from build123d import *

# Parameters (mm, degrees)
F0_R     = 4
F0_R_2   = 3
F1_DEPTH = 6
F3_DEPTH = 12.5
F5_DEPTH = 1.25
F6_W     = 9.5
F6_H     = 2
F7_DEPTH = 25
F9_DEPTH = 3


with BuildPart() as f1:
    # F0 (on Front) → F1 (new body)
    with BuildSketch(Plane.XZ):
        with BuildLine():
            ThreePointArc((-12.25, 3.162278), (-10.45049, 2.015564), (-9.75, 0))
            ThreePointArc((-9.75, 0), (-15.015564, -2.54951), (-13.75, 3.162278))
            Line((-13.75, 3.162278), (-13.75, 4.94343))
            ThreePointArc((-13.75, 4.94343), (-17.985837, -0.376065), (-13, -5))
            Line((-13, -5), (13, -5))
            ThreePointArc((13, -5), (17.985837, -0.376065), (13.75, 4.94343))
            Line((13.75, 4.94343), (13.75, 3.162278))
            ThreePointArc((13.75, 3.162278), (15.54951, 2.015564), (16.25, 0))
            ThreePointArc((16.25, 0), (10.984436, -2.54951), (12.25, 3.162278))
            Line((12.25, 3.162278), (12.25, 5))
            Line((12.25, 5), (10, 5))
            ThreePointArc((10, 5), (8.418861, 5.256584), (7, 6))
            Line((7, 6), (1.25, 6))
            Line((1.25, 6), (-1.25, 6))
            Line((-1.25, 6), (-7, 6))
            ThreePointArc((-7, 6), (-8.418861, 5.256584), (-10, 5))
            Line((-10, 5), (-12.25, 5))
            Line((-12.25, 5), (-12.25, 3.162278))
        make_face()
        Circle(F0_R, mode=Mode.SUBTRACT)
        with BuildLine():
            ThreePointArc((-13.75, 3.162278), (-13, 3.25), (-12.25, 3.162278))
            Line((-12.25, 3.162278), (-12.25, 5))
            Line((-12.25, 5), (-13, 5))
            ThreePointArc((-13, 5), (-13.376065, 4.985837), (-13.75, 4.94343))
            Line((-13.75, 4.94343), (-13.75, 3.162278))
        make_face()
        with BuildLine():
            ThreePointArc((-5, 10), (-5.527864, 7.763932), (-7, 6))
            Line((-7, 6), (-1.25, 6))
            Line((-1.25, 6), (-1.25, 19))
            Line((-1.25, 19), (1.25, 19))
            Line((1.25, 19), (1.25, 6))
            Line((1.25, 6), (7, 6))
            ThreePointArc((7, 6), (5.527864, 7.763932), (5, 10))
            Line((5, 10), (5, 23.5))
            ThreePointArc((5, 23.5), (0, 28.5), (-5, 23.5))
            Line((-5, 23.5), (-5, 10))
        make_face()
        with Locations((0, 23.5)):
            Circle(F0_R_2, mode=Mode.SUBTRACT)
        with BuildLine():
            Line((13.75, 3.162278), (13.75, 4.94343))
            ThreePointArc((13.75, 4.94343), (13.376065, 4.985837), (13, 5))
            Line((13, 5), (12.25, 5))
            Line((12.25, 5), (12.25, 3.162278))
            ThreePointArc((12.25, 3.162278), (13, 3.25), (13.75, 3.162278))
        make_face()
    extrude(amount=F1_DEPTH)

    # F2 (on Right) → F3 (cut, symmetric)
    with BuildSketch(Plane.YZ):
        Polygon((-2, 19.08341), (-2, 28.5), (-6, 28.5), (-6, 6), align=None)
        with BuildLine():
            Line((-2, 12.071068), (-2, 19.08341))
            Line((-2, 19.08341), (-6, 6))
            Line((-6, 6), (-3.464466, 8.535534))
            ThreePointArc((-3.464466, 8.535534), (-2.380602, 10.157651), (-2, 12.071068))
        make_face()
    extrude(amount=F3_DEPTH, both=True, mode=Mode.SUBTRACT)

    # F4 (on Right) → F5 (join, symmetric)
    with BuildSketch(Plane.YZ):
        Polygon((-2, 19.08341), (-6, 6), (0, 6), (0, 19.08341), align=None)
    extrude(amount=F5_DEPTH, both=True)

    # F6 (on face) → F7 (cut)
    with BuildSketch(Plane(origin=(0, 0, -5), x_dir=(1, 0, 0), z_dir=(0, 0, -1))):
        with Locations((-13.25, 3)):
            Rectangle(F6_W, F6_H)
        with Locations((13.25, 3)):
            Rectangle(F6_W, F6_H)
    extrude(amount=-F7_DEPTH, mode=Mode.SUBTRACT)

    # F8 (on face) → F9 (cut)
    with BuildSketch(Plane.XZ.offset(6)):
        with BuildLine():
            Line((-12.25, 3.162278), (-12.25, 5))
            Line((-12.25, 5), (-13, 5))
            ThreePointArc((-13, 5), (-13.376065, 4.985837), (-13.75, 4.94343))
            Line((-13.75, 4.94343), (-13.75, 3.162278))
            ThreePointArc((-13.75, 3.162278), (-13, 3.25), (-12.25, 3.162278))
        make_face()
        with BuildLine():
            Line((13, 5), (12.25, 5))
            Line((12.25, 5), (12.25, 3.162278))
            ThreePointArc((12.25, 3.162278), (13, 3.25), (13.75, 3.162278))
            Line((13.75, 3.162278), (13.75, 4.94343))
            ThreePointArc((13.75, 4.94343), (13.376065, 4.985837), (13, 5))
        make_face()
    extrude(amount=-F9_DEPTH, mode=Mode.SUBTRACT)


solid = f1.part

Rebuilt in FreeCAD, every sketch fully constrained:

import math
import FreeCAD as App
import Part
import Sketcher

V = App.Vector
Q = App.Units.Quantity


def add_polygon(sketch, points):
    """Adds a closed chain of lines whose ends are joined by coincident constraints."""
    first, n = sketch.GeometryCount, len(points)
    for a, b in zip(points, points[1:] + points[:1]):
        sketch.addGeometry(Part.LineSegment(App.Vector(*a, 0), App.Vector(*b, 0)), False)
    for i in range(n):
        sketch.addConstraint(Sketcher.Constraint("Coincident", first + i, 2, first + (i + 1) % n, 1))

doc = App.newDocument("Part")
body = doc.addObject("PartDesign::Body", "Body")

# Sketch on XZ plane
sketch1 = body.newObject("Sketcher::SketchObject", "Sketch")
sketch1.AttachmentSupport = (doc.getObject("XZ_Plane"), [""])
sketch1.MapMode = "FlatFace"
sketch1.addGeometry(Part.LineSegment(V(-10, 5, 0), V(-13, 5, 0)), False)  # 0
sketch1.addGeometry(Part.ArcOfCircle(Part.Circle(V(-12.999988, -0.000162, 0), V(0, 0, 1), 5.000162), math.radians(90.000139), math.radians(98.626785)), False)  # 1
sketch1.addGeometry(Part.ArcOfCircle(Part.Circle(V(-13, 0, 0), V(0, 0, 1), 5), math.radians(98.626932), math.radians(269.999994)), False)  # 2
sketch1.addGeometry(Part.LineSegment(V(-13, -5, 0), V(13, -5, 0)), False)  # 3
sketch1.addGeometry(Part.ArcOfCircle(Part.Circle(V(13, 0, 0), V(0, 0, 1), 5), math.radians(-89.999994), math.radians(81.373068)), False)  # 4
sketch1.addGeometry(Part.ArcOfCircle(Part.Circle(V(12.999988, -0.000162, 0), V(0, 0, 1), 5.000162), math.radians(81.373215), math.radians(89.999861)), False)  # 5
sketch1.addGeometry(Part.LineSegment(V(13, 5, 0), V(10, 5, 0)), False)  # 6
sketch1.addGeometry(Part.ArcOfCircle(Part.Circle(V(10.000003, 10.000008, 0), V(0, 0, 1), 5.000008), math.radians(-126.869869), math.radians(-90.000029)), False)  # 7
sketch1.addGeometry(Part.ArcOfCircle(Part.Circle(V(10, 10, 0), V(0, 0, 1), 5), math.radians(179.999998), math.radians(233.130105)), False)  # 8
sketch1.addGeometry(Part.LineSegment(V(5, 10, 0), V(5, 23.5, 0)), False)  # 9
sketch1.addGeometry(Part.ArcOfCircle(Part.Circle(V(0, 23.5, 0), V(0, 0, 1), 5), math.radians(0), math.radians(180)), False)  # 10
sketch1.addGeometry(Part.LineSegment(V(-5, 23.5, 0), V(-5, 10, 0)), False)  # 11
sketch1.addGeometry(Part.ArcOfCircle(Part.Circle(V(-10, 10, 0), V(0, 0, 1), 5), math.radians(-53.130105), math.radians(0.000002)), False)  # 12
sketch1.addGeometry(Part.ArcOfCircle(Part.Circle(V(-10.000003, 10.000008, 0), V(0, 0, 1), 5.000008), math.radians(-89.999971), math.radians(-53.130131)), False)  # 13
sketch1.addGeometry(Part.ArcOfCircle(Part.Circle(V(12.999999, 0, 0), V(0, 0, 1), 3.250001), math.radians(0.000009), math.radians(76.657621)), False)  # 14
sketch1.addGeometry(Part.ArcOfCircle(Part.Circle(V(13, 0, 0), V(0, 0, 1), 3.25), math.radians(103.342362), math.radians(359.999996)), False)  # 15
sketch1.addGeometry(Part.ArcOfCircle(Part.Circle(V(13, -0.000012, 0), V(0, 0, 1), 3.250012), math.radians(76.657687), math.radians(103.342313)), False)  # 16
sketch1.addGeometry(Part.ArcOfCircle(Part.Circle(V(-13.000001, 0, 0), V(0, 0, 1), 3.250001), math.radians(0.000009), math.radians(76.657621)), False)  # 17
sketch1.addGeometry(Part.ArcOfCircle(Part.Circle(V(-13, 0, 0), V(0, 0, 1), 3.25), math.radians(103.342362), math.radians(359.999996)), False)  # 18
sketch1.addGeometry(Part.ArcOfCircle(Part.Circle(V(-13, -0.000012, 0), V(0, 0, 1), 3.250012), math.radians(76.657687), math.radians(103.342313)), False)  # 19
sketch1.addGeometry(Part.Circle(V(0, 0, 0), V(0, 0, 1), 4), False)  # 20
add_polygon(sketch1, [(1.25, 6), (-1.25, 6), (-1.25, 19), (1.25, 19)])  # lines 21-24
sketch1.addGeometry(Part.Circle(V(0, 23.5, 0), V(0, 0, 1), 3), False)  # 25
sketch1.addConstraint(Sketcher.Constraint("Coincident", 0, 2, 1, 1))
sketch1.addConstraint(Sketcher.Constraint("Coincident", 1, 2, 2, 1))
sketch1.addConstraint(Sketcher.Constraint("Tangent", 2, 2, 3, 1))
sketch1.addConstraint(Sketcher.Constraint("Tangent", 3, 2, 4, 1))
sketch1.addConstraint(Sketcher.Constraint("Coincident", 4, 2, 5, 1))
sketch1.addConstraint(Sketcher.Constraint("Coincident", 5, 2, 6, 1))
sketch1.addConstraint(Sketcher.Constraint("Tangent", 6, 2, 7, 2))
sketch1.addConstraint(Sketcher.Constraint("Tangent", 7, 1, 8, 2))
sketch1.addConstraint(Sketcher.Constraint("Tangent", 8, 1, 9, 1))
sketch1.addConstraint(Sketcher.Constraint("Tangent", 9, 2, 10, 1))
sketch1.addConstraint(Sketcher.Constraint("Tangent", 10, 2, 11, 1))
sketch1.addConstraint(Sketcher.Constraint("Tangent", 11, 2, 12, 2))
sketch1.addConstraint(Sketcher.Constraint("Tangent", 12, 1, 13, 2))
sketch1.addConstraint(Sketcher.Constraint("Tangent", 13, 1, 0, 1))
sketch1.addConstraint(Sketcher.Constraint("Tangent", 14, 1, 15, 2))
sketch1.addConstraint(Sketcher.Constraint("Tangent", 15, 1, 16, 2))
sketch1.addConstraint(Sketcher.Constraint("Tangent", 16, 1, 14, 2))
sketch1.addConstraint(Sketcher.Constraint("Tangent", 17, 1, 18, 2))
sketch1.addConstraint(Sketcher.Constraint("Tangent", 18, 1, 19, 2))
sketch1.addConstraint(Sketcher.Constraint("Tangent", 19, 1, 17, 2))
sketch1.addConstraint(Sketcher.Constraint("Horizontal", 0))
sketch1.addConstraint(Sketcher.Constraint("Horizontal", 3))
sketch1.addConstraint(Sketcher.Constraint("Horizontal", 6))
sketch1.addConstraint(Sketcher.Constraint("Vertical", 9))
sketch1.addConstraint(Sketcher.Constraint("Vertical", 11))
sketch1.addConstraint(Sketcher.Constraint("Horizontal", 21))
sketch1.addConstraint(Sketcher.Constraint("Vertical", 22))
sketch1.addConstraint(Sketcher.Constraint("Horizontal", 23))
sketch1.addConstraint(Sketcher.Constraint("Vertical", 24))
sketch1.addConstraint(Sketcher.Constraint("Coincident", 20, 3, -1, 1))
sketch1.addConstraint(Sketcher.Constraint("Coincident", 14, 3, 4, 3))
sketch1.addConstraint(Sketcher.Constraint("Coincident", 17, 3, 2, 3))
sketch1.addConstraint(Sketcher.Constraint("Coincident", 25, 3, 10, 3))
sketch1.addConstraint(Sketcher.Constraint("Equal", 2, 4))
sketch1.addConstraint(Sketcher.Constraint("Equal", 1, 5))
sketch1.addConstraint(Sketcher.Constraint("Equal", 4, 8))
sketch1.addConstraint(Sketcher.Constraint("Equal", 8, 10))
sketch1.addConstraint(Sketcher.Constraint("Equal", 10, 12))
sketch1.addConstraint(Sketcher.Constraint("Equal", 7, 13))
sketch1.addConstraint(Sketcher.Constraint("Equal", 15, 17))
sketch1.addConstraint(Sketcher.Constraint("Symmetric", 2, 3, 4, 3, -1, 1))
sketch1.addConstraint(Sketcher.Constraint("Symmetric", 0, 2, 3, 2, -1, 1))
sketch1.addConstraint(Sketcher.Constraint("Symmetric", 2, 2, 5, 2, -1, 1))
sketch1.addConstraint(Sketcher.Constraint("Symmetric", 7, 3, 12, 3, -2))
sketch1.addConstraint(Sketcher.Constraint("PointOnObject", 14, 1, -1))
sketch1.addConstraint(Sketcher.Constraint("PointOnObject", 17, 1, -1))
sketch1.addConstraint(Sketcher.Constraint("Horizontal", 1, 2, 4, 2))
sketch1.addConstraint(Sketcher.Constraint("Horizontal", 7, 1, 12, 1))
sketch1.addConstraint(Sketcher.Constraint("Horizontal", 15, 1, 16, 1))
sketch1.addConstraint(Sketcher.Constraint("Horizontal", 16, 1, 18, 1))
sketch1.addConstraint(Sketcher.Constraint("Horizontal", 18, 1, 19, 1))
sketch1.addConstraint(Sketcher.Constraint("Horizontal", 12, 1, 21, 2))
sketch1.addConstraint(Sketcher.Constraint("Vertical", 4, 2, 16, 1))
sketch1.addConstraint(Sketcher.Constraint("Diameter", 20, 8.0))
sketch1.addConstraint(Sketcher.Constraint("Diameter", 25, 6.0))
sketch1.addConstraint(Sketcher.Constraint("Radius", 2, 5.0))
sketch1.addConstraint(Sketcher.Constraint("DistanceX", 0, 2, 0, 1, 3.0))
sketch1.addConstraint(Sketcher.Constraint("DistanceY", 22, 1, 22, 2, 13.0))
sketch1.addConstraint(Sketcher.Constraint("Radius", 14, 3.250001))
sketch1.addConstraint(Sketcher.Constraint("DistanceX", 21, 2, 21, 1, 2.5))
sketch1.addConstraint(Sketcher.Constraint("DistanceY", 9, 1, 9, 2, 13.5))
sketch1.addConstraint(Sketcher.Constraint("DistanceX", -1, 1, 7, 1, 7.0))
sketch1.addConstraint(Sketcher.Constraint("DistanceX", 15, 1, 4, 2, 1.5))
sketch1.addConstraint(Sketcher.Constraint("DistanceX", 21, 2, -1, 1, 1.25))
sketch1.addConstraint(Sketcher.Constraint("Radius", 1, 5.000162))
pad1 = body.newObject("PartDesign::Pad", "Pad")
pad1.Profile = sketch1
pad1.Length = 6

# Sketch on YZ plane
sketch2 = body.newObject("Sketcher::SketchObject", "Sketch001")
sketch2.AttachmentSupport = (doc.getObject("YZ_Plane"), [""])
sketch2.MapMode = "FlatFace"
sketch2.addGeometry(Part.LineSegment(V(-2, 28.5, 0), V(-6, 28.5, 0)), False)
sketch2.addGeometry(Part.LineSegment(V(-6, 28.5, 0), V(-6, 6, 0)), False)
sketch2.addGeometry(Part.LineSegment(V(-6, 6, 0), V(-3.464466, 8.535534, 0)), False)
sketch2.addGeometry(Part.ArcOfCircle(Part.Circle(V(-6.999998, 12.071067, 0), V(0, 0, 1), 4.999998), math.radians(-45.000009), math.radians(0.000012)), False)
sketch2.addGeometry(Part.LineSegment(V(-2, 12.071068, 0), V(-2, 28.5, 0)), False)
sketch2.addConstraint(Sketcher.Constraint("Coincident", 0, 2, 1, 1))
sketch2.addConstraint(Sketcher.Constraint("Coincident", 1, 2, 2, 1))
sketch2.addConstraint(Sketcher.Constraint("Tangent", 2, 2, 3, 1))
sketch2.addConstraint(Sketcher.Constraint("Tangent", 3, 2, 4, 1))
sketch2.addConstraint(Sketcher.Constraint("Coincident", 4, 2, 0, 1))
sketch2.addConstraint(Sketcher.Constraint("Horizontal", 0))
sketch2.addConstraint(Sketcher.Constraint("Vertical", 1))
sketch2.addConstraint(Sketcher.Constraint("Vertical", 4))
sketch2.addConstraint(Sketcher.Constraint("DistanceX", 0, 2, 0, 1, 4.0))
sketch2.addConstraint(Sketcher.Constraint("Angle", 2, Q("45 deg")))
sketch2.addConstraint(Sketcher.Constraint("DistanceY", 1, 2, 1, 1, 22.5))
sketch2.addConstraint(Sketcher.Constraint("DistanceX", 0, 2, -1, 1, 6.0))
sketch2.addConstraint(Sketcher.Constraint("DistanceY", -1, 1, 1, 2, 6.0))
sketch2.addConstraint(Sketcher.Constraint("Radius", 3, 4.999998))
pocket1 = body.newObject("PartDesign::Pocket", "Pocket")
pocket1.Profile = sketch2
pocket1.Length = 25
pocket1.Midplane = True

# Sketch on YZ plane
sketch3 = body.newObject("Sketcher::SketchObject", "Sketch002")
sketch3.AttachmentSupport = (doc.getObject("YZ_Plane"), [""])
sketch3.MapMode = "FlatFace"
add_polygon(sketch3, [(-2, 19.08341), (-6, 6), (0, 6), (0, 19.08341)])  # lines 0-3
sketch3.addConstraint(Sketcher.Constraint("Horizontal", 1))
sketch3.addConstraint(Sketcher.Constraint("Vertical", 2))
sketch3.addConstraint(Sketcher.Constraint("Horizontal", 3))
sketch3.addConstraint(Sketcher.Constraint("PointOnObject", 1, 2, -2))
sketch3.addConstraint(Sketcher.Constraint("DistanceX", 1, 1, 1, 2, 6.0))
sketch3.addConstraint(Sketcher.Constraint("DistanceX", 3, 2, 3, 1, 2.0))
sketch3.addConstraint(Sketcher.Constraint("Angle", 0, Q("-107.000001 deg")))
sketch3.addConstraint(Sketcher.Constraint("DistanceY", -1, 1, 0, 2, 6.0))
pad2 = body.newObject("PartDesign::Pad", "Pad001")
pad2.Profile = sketch3
pad2.Length = 2.5
pad2.Midplane = True

# Sketch on XY plane
sketch4 = body.newObject("Sketcher::SketchObject", "Sketch003")
sketch4.AttachmentSupport = (doc.getObject("XY_Plane"), [""])
sketch4.MapMode = "FlatFace"
sketch4.AttachmentOffset = App.Placement(V(0, 0, -5), App.Rotation())
add_polygon(sketch4, [(-18, -4), (-18, -2), (-8.5, -2), (-8.5, -4)])  # lines 0-3
add_polygon(sketch4, [(8.5, -4), (8.5, -2), (18, -2), (18, -4)])  # lines 4-7
sketch4.addConstraint(Sketcher.Constraint("Vertical", 0))
sketch4.addConstraint(Sketcher.Constraint("Horizontal", 1))
sketch4.addConstraint(Sketcher.Constraint("Vertical", 2))
sketch4.addConstraint(Sketcher.Constraint("Horizontal", 3))
sketch4.addConstraint(Sketcher.Constraint("Vertical", 4))
sketch4.addConstraint(Sketcher.Constraint("Horizontal", 5))
sketch4.addConstraint(Sketcher.Constraint("Vertical", 6))
sketch4.addConstraint(Sketcher.Constraint("Horizontal", 7))
sketch4.addConstraint(Sketcher.Constraint("Symmetric", 1, 2, 4, 2, -2))
sketch4.addConstraint(Sketcher.Constraint("Symmetric", 3, 2, 6, 2, -2))
sketch4.addConstraint(Sketcher.Constraint("DistanceY", 0, 1, 0, 2, 2.0))
sketch4.addConstraint(Sketcher.Constraint("DistanceX", 1, 1, 1, 2, 9.5))
sketch4.addConstraint(Sketcher.Constraint("DistanceX", 0, 2, -1, 1, 18.0))
sketch4.addConstraint(Sketcher.Constraint("DistanceY", 0, 2, -1, 1, 2.0))
pocket2 = body.newObject("PartDesign::Pocket", "Pocket001")
pocket2.Profile = sketch4
pocket2.Length = 25
pocket2.Reversed = True

# Sketch on XZ plane
sketch5 = body.newObject("Sketcher::SketchObject", "Sketch004")
sketch5.AttachmentSupport = (doc.getObject("XZ_Plane"), [""])
sketch5.MapMode = "FlatFace"
sketch5.AttachmentOffset = App.Placement(V(0, 0, 6), App.Rotation())
sketch5.addGeometry(Part.LineSegment(V(-12.25, 3.162278, 0), V(-12.25, 5, 0)), False)
sketch5.addGeometry(Part.LineSegment(V(-12.25, 5, 0), V(-13, 5, 0)), False)
sketch5.addGeometry(Part.ArcOfCircle(Part.Circle(V(-12.999988, -0.000162, 0), V(0, 0, 1), 5.000162), math.radians(90.000139), math.radians(98.626785)), False)
sketch5.addGeometry(Part.LineSegment(V(-13.75, 4.94343, 0), V(-13.75, 3.162278, 0)), False)
sketch5.addGeometry(Part.ArcOfCircle(Part.Circle(V(-13, -0.000012, 0), V(0, 0, 1), 3.250012), math.radians(76.657687), math.radians(103.342313)), False)
sketch5.addGeometry(Part.LineSegment(V(13, 5, 0), V(12.25, 5, 0)), False)
sketch5.addGeometry(Part.LineSegment(V(12.25, 5, 0), V(12.25, 3.162278, 0)), False)
sketch5.addGeometry(Part.ArcOfCircle(Part.Circle(V(13, -0.000012, 0), V(0, 0, 1), 3.250012), math.radians(76.657687), math.radians(103.342313)), False)
sketch5.addGeometry(Part.LineSegment(V(13.75, 3.162278, 0), V(13.75, 4.94343, 0)), False)
sketch5.addGeometry(Part.ArcOfCircle(Part.Circle(V(12.999988, -0.000162, 0), V(0, 0, 1), 5.000162), math.radians(81.373215), math.radians(89.999861)), False)
sketch5.addConstraint(Sketcher.Constraint("Coincident", 0, 2, 1, 1))
sketch5.addConstraint(Sketcher.Constraint("Coincident", 1, 2, 2, 1))
sketch5.addConstraint(Sketcher.Constraint("Coincident", 2, 2, 3, 1))
sketch5.addConstraint(Sketcher.Constraint("Coincident", 3, 2, 4, 2))
sketch5.addConstraint(Sketcher.Constraint("Coincident", 4, 1, 0, 1))
sketch5.addConstraint(Sketcher.Constraint("Coincident", 5, 2, 6, 1))
sketch5.addConstraint(Sketcher.Constraint("Coincident", 6, 2, 7, 2))
sketch5.addConstraint(Sketcher.Constraint("Coincident", 7, 1, 8, 1))
sketch5.addConstraint(Sketcher.Constraint("Coincident", 8, 2, 9, 1))
sketch5.addConstraint(Sketcher.Constraint("Coincident", 9, 2, 5, 1))
sketch5.addConstraint(Sketcher.Constraint("Vertical", 0))
sketch5.addConstraint(Sketcher.Constraint("Horizontal", 1))
sketch5.addConstraint(Sketcher.Constraint("Vertical", 3))
sketch5.addConstraint(Sketcher.Constraint("Horizontal", 5))
sketch5.addConstraint(Sketcher.Constraint("Vertical", 6))
sketch5.addConstraint(Sketcher.Constraint("Vertical", 8))
sketch5.addConstraint(Sketcher.Constraint("Equal", 4, 7))
sketch5.addConstraint(Sketcher.Constraint("Equal", 2, 9))
sketch5.addConstraint(Sketcher.Constraint("Symmetric", 4, 3, 7, 3, -2))
sketch5.addConstraint(Sketcher.Constraint("Symmetric", 2, 3, 9, 3, -2))
sketch5.addConstraint(Sketcher.Constraint("Horizontal", 3, 2, 4, 1))
sketch5.addConstraint(Sketcher.Constraint("Horizontal", 4, 1, 6, 2))
sketch5.addConstraint(Sketcher.Constraint("Horizontal", 6, 2, 7, 1))
sketch5.addConstraint(Sketcher.Constraint("Vertical", 4, 3, 1, 2))
sketch5.addConstraint(Sketcher.Constraint("Vertical", 7, 3, 9, 2))
sketch5.addConstraint(Sketcher.Constraint("DistanceX", 4, 3, -1, 1, 13.0))
sketch5.addConstraint(Sketcher.Constraint("DistanceY", -1, 1, 0, 2, 5.0))
sketch5.addConstraint(Sketcher.Constraint("DistanceX", 1, 2, 1, 1, 0.75))
sketch5.addConstraint(Sketcher.Constraint("Radius", 2, 5.000162))
sketch5.addConstraint(Sketcher.Constraint("Radius", 4, 3.250012))
sketch5.addConstraint(Sketcher.Constraint("DistanceY", 0, 1, 0, 2, 1.837722))
sketch5.addConstraint(Sketcher.Constraint("DistanceY", 3, 2, 3, 1, 1.781152))
pocket3 = body.newObject("PartDesign::Pocket", "Pocket002")
pocket3.Profile = sketch5
pocket3.Length = 3

doc.recompute()
